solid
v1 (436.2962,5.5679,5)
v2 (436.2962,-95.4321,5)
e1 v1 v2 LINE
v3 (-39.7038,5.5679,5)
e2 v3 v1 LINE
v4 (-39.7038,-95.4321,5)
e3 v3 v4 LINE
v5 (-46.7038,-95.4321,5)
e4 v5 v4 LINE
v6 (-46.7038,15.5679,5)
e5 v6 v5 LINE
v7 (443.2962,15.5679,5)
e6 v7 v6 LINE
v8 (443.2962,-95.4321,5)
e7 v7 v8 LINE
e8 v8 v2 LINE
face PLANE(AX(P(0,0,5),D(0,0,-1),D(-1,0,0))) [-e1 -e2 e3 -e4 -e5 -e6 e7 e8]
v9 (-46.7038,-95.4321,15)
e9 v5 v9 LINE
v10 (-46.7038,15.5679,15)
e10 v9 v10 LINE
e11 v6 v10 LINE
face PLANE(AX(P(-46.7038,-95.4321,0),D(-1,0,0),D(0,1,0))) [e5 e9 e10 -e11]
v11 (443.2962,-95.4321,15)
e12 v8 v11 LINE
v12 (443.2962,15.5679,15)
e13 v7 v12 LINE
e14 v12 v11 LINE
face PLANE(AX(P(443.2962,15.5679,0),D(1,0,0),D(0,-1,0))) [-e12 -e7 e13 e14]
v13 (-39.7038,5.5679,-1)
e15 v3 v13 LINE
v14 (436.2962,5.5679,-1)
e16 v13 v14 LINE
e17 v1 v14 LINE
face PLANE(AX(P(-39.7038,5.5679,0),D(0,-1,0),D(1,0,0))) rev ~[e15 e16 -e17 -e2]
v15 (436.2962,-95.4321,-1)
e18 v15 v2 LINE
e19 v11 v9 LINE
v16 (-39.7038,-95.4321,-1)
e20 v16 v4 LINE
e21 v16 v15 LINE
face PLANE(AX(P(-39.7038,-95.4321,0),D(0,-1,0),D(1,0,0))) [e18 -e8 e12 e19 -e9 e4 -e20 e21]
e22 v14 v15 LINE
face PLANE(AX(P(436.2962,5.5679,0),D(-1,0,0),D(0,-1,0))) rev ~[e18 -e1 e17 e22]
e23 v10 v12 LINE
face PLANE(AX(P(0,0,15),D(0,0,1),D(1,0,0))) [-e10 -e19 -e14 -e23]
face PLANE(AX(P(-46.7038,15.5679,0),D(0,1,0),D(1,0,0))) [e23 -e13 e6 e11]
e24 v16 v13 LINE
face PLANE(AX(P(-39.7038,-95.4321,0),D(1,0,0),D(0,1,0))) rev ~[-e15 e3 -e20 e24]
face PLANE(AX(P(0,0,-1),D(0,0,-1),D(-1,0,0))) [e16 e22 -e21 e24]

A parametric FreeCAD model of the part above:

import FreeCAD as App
import Part
import Sketcher
from FreeCAD import Vector


def add_polygon(sketch, points):
    """Adds a closed chain of lines whose ends are joined by coincident constraints."""
    first, n = sketch.GeometryCount, len(points)
    for a, b in zip(points, points[1:] + points[:1]):
        sketch.addGeometry(Part.LineSegment(App.Vector(*a, 0), App.Vector(*b, 0)), False)
    for i in range(n):
        sketch.addConstraint(Sketcher.Constraint("Coincident", first + i, 2, first + (i + 1) % n, 1))

doc = App.newDocument("Part")
body = doc.addObject("PartDesign::Body", "Body")

# Sketch on XY plane
sketch1 = body.newObject("Sketcher::SketchObject", "Sketch")
sketch1.AttachmentSupport = (doc.getObject("XY_Plane"), [""])
sketch1.MapMode = "FlatFace"
add_polygon(sketch1, [(443, 16), (-47, 16), (-47, -95), (443, -95)])  # lines 0-3
sketch1.addConstraint([
    Sketcher.Constraint("Horizontal", 0),
    Sketcher.Constraint("Vertical", 1),
    Sketcher.Constraint("Horizontal", 2),
    Sketcher.Constraint("Vertical", 3),
    Sketcher.Constraint("DistanceX", 0, 2, 0, 1, 490.0),
    Sketcher.Constraint("DistanceY", 1, 2, 1, 1, 111.0),
    Sketcher.Constraint("DistanceY", -1, 1, 0, 2, 15.568),
    Sketcher.Constraint("DistanceX", 0, 2, -1, 1, 46.7038),
])
pad1 = body.newObject("PartDesign::Pad", "Pad")
pad1.Profile = sketch1
pad1.Length = 15

# Sketch on YZ plane
sketch2 = body.newObject("Sketcher::SketchObject", "Sketch001")
sketch2.AttachmentSupport = (doc.getObject("YZ_Plane"), [""])
sketch2.MapMode = "FlatFace"
sketch2.AttachmentOffset = App.Placement(Vector(0, 0, 443.2962), App.Rotation())
add_polygon(sketch2, [(-95, 5), (-95, 0), (16, 0), (16, 5)])  # lines 0-3
sketch2.addConstraint([
    Sketcher.Constraint("Vertical", 0),
    Sketcher.Constraint("Horizontal", 1),
    Sketcher.Constraint("Vertical", 2),
    Sketcher.Constraint("Horizontal", 3),
    Sketcher.Constraint("PointOnObject", 0, 2, -1),
    Sketcher.Constraint("DistanceX", 1, 1, 1, 2, 111.0),
    Sketcher.Constraint("DistanceY", 0, 2, 0, 1, 5.0),
    Sketcher.Constraint("DistanceX", 0, 2, -1, 1, 95.432),
])
pocket1 = body.newObject("PartDesign::Pocket", "Pocket")
pocket1.Profile = sketch2
pocket1.Length = 7

# Sketch on YZ plane
sketch3 = body.newObject("Sketcher::SketchObject", "Sketch002")
sketch3.AttachmentSupport = (doc.getObject("YZ_Plane"), [""])
sketch3.MapMode = "FlatFace"
sketch3.AttachmentOffset = App.Placement(Vector(0, 0, -46.7038), App.Rotation())
add_polygon(sketch3, [(16, 5), (16, 0), (-95, 0), (-95, 5)])  # lines 0-3
sketch3.addConstraint([
    Sketcher.Constraint("Vertical", 0),
    Sketcher.Constraint("Horizontal", 1),
    Sketcher.Constraint("Vertical", 2),
    Sketcher.Constraint("Horizontal", 3),
    Sketcher.Constraint("PointOnObject", 0, 2, -1),
    Sketcher.Constraint("DistanceX", 1, 2, 1, 1, 111.0),
    Sketcher.Constraint("DistanceY", 0, 2, 0, 1, 5.0),
    Sketcher.Constraint("DistanceX", -1, 1, 0, 2, 15.568),
])
pocket2 = body.newObject("PartDesign::Pocket", "Pocket001")
pocket2.Profile = sketch3
pocket2.Length = 7
pocket2.Reversed = True

# Sketch on XY plane
sketch4 = body.newObject("Sketcher::SketchObject", "Sketch003")
sketch4.AttachmentSupport = (doc.getObject("XY_Plane"), [""])
sketch4.MapMode = "FlatFace"
add_polygon(sketch4, [(-40, 16), (436, 16), (436, 6), (-40, 6)])  # lines 0-3
sketch4.addConstraint([
    Sketcher.Constraint("Horizontal", 0),
    Sketcher.Constraint("Vertical", 1),
    Sketcher.Constraint("Horizontal", 2),
    Sketcher.Constraint("Vertical", 3),
    Sketcher.Constraint("DistanceX", 0, 1, 0, 2, 476.0),
    Sketcher.Constraint("DistanceY", 1, 2, 1, 1, 10.0),
    Sketcher.Constraint("DistanceY", -1, 1, 0, 2, 15.568),
    Sketcher.Constraint("DistanceX", -1, 1, 0, 2, 436.2962),
])
pocket3 = body.newObject("PartDesign::Pocket", "Pocket002")
pocket3.Profile = sketch4
pocket3.Length = 5
pocket3.Reversed = True

# Sketch on XY plane
sketch5 = body.newObject("Sketcher::SketchObject", "Sketch004")
sketch5.AttachmentSupport = (doc.getObject("XY_Plane"), [""])
sketch5.MapMode = "FlatFace"
add_polygon(sketch5, [(-40, -95), (-40, 6), (436, 6), (436, -95)])  # lines 0-3
sketch5.addConstraint([
    Sketcher.Constraint("Vertical", 0),
    Sketcher.Constraint("Horizontal", 1),
    Sketcher.Constraint("Vertical", 2),
    Sketcher.Constraint("Horizontal", 3),
    Sketcher.Constraint("DistanceX", 1, 1, 1, 2, 476.0),
    Sketcher.Constraint("DistanceY", 0, 1, 0, 2, 101.0),
    Sketcher.Constraint("DistanceY", -1, 1, 0, 2, 5.568),
    Sketcher.Constraint("DistanceX", 0, 2, -1, 1, 39.7038),
])
pad2 = body.newObject("PartDesign::Pad", "Pad001")
pad2.Profile = sketch5
pad2.Length = 1
pad2.Reversed = True

doc.recompute()
